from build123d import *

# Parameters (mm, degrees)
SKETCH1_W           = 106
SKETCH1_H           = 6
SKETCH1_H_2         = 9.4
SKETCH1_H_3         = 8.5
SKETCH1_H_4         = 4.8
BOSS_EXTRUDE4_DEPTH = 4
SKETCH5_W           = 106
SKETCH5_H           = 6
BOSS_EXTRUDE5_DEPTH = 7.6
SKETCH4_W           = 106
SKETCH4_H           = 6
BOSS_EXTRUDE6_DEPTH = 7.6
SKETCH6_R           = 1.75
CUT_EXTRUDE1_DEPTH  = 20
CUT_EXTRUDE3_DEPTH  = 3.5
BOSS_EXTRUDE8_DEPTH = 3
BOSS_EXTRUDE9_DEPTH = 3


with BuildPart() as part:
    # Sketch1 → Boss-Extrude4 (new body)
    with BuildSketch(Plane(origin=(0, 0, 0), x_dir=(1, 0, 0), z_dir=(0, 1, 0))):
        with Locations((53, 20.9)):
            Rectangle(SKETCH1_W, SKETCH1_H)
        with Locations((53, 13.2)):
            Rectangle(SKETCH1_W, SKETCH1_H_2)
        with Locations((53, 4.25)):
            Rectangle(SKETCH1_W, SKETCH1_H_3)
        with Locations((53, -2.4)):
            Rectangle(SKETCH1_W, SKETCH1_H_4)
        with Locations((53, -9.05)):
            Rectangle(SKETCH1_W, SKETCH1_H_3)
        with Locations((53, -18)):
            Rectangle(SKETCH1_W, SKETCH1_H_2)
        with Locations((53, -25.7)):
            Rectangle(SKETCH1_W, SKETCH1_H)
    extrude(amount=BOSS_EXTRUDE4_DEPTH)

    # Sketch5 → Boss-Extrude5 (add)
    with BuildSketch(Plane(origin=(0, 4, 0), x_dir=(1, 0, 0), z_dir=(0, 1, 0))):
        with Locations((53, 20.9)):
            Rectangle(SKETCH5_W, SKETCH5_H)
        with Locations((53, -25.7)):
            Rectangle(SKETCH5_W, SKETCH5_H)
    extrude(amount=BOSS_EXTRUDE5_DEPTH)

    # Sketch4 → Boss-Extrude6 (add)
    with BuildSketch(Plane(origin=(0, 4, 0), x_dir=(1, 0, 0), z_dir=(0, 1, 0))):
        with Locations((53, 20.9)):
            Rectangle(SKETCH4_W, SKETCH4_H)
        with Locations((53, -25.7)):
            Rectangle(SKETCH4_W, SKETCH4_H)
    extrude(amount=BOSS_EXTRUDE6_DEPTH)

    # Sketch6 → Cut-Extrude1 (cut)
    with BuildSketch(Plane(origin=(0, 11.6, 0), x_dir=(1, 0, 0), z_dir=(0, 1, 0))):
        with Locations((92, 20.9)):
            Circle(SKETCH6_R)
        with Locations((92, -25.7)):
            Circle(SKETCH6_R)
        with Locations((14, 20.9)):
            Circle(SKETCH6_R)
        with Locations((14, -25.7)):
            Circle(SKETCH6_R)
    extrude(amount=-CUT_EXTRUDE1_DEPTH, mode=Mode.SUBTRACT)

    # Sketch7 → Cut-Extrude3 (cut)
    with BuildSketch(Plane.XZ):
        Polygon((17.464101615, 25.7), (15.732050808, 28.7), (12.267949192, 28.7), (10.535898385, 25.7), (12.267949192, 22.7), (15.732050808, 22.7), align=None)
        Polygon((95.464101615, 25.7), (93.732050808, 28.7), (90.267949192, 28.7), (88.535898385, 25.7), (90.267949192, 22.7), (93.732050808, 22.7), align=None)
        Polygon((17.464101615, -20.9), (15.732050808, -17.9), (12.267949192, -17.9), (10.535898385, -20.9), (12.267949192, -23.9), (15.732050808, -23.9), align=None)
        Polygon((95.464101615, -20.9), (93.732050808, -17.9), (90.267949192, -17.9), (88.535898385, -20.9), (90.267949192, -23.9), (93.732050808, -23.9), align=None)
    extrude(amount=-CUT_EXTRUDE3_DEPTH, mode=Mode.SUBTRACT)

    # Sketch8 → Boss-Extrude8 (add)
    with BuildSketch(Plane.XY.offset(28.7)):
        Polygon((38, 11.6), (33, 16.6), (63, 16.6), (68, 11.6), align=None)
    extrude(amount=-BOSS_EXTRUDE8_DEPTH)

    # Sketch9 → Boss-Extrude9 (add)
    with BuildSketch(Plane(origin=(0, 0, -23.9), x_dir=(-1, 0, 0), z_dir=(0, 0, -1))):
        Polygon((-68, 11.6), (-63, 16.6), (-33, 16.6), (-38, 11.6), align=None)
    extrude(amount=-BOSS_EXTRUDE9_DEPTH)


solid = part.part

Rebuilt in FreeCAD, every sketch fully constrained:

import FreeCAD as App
import Part
import Sketcher
Q = App.Units.Quantity

doc = App.newDocument("Part")
body = doc.addObject("PartDesign::Body", "Body")

# Sketch on XZ plane
sketch1 = body.newObject("Sketcher::SketchObject", "Sketch")
sketch1.AttachmentSupport = (doc.getObject("XZ_Plane"), [""])
sketch1.MapMode = "FlatFace"
sketch1.addGeometry([
    Part.LineSegment(App.Vector(0, -23.9, 0), App.Vector(0, 28.7, 0)),
    Part.LineSegment(App.Vector(0, 28.7, 0), App.Vector(106, 28.7, 0)),
    Part.LineSegment(App.Vector(106, 28.7, 0), App.Vector(106, -23.9, 0)),
    Part.LineSegment(App.Vector(106, -23.9, 0), App.Vector(0, -23.9, 0)),
], False)
sketch1.addConstraint([
    Sketcher.Constraint("Coincident", 0, 2, 1, 1),
    Sketcher.Constraint("Coincident", 1, 2, 2, 1),
    Sketcher.Constraint("Coincident", 2, 2, 3, 1),
    Sketcher.Constraint("Coincident", 3, 2, 0, 1),
    Sketcher.Constraint("Vertical", 0),
    Sketcher.Constraint("Horizontal", 1),
    Sketcher.Constraint("Vertical", 2),
    Sketcher.Constraint("Horizontal", 3),
    Sketcher.Constraint("PointOnObject", 0, 2, -2),
    Sketcher.Constraint("DistanceX", 1, 1, 1, 2, 106.0),
    Sketcher.Constraint("DistanceY", 0, 1, 0, 2, 52.6),
    Sketcher.Constraint("DistanceY", -1, 1, 0, 2, 28.7),
])
pad1 = body.newObject("PartDesign::Pad", "Pad")
pad1.Profile = sketch1
pad1.Length = 4
pad1.Reversed = True

# Sketch on XZ plane
sketch2 = body.newObject("Sketcher::SketchObject", "Sketch001")
sketch2.AttachmentSupport = (doc.getObject("XZ_Plane"), [""])
sketch2.MapMode = "FlatFace"
sketch2.AttachmentOffset = App.Placement(App.Vector(0, 0, -4), App.Rotation())
sketch2.addGeometry([
    Part.LineSegment(App.Vector(0, -23.9, 0), App.Vector(0, -17.9, 0)),  # 0
    Part.LineSegment(App.Vector(0, -17.9, 0), App.Vector(106, -17.9, 0)),  # 1
    Part.LineSegment(App.Vector(106, -17.9, 0), App.Vector(106, -23.9, 0)),  # 2
    Part.LineSegment(App.Vector(106, -23.9, 0), App.Vector(0, -23.9, 0)),  # 3
    Part.LineSegment(App.Vector(0, 22.7, 0), App.Vector(0, 28.7, 0)),  # 4
    Part.LineSegment(App.Vector(0, 28.7, 0), App.Vector(106, 28.7, 0)),  # 5
    Part.LineSegment(App.Vector(106, 28.7, 0), App.Vector(106, 22.7, 0)),  # 6
    Part.LineSegment(App.Vector(106, 22.7, 0), App.Vector(0, 22.7, 0)),  # 7
], False)
sketch2.addConstraint([
    Sketcher.Constraint("Coincident", 0, 2, 1, 1),
    Sketcher.Constraint("Coincident", 1, 2, 2, 1),
    Sketcher.Constraint("Coincident", 2, 2, 3, 1),
    Sketcher.Constraint("Coincident", 3, 2, 0, 1),
    Sketcher.Constraint("Coincident", 4, 2, 5, 1),
    Sketcher.Constraint("Coincident", 5, 2, 6, 1),
    Sketcher.Constraint("Coincident", 6, 2, 7, 1),
    Sketcher.Constraint("Coincident", 7, 2, 4, 1),
    Sketcher.Constraint("Vertical", 0),
    Sketcher.Constraint("Horizontal", 1),
    Sketcher.Constraint("Vertical", 2),
    Sketcher.Constraint("Horizontal", 3),
    Sketcher.Constraint("Vertical", 4),
    Sketcher.Constraint("Horizontal", 5),
    Sketcher.Constraint("Vertical", 6),
    Sketcher.Constraint("Horizontal", 7),
    Sketcher.Constraint("PointOnObject", 0, 2, -2),
    Sketcher.Constraint("PointOnObject", 4, 2, -2),
    Sketcher.Constraint("Vertical", 2, 2, 5, 2),
    Sketcher.Constraint("Equal", 2, 4),
    Sketcher.Constraint("DistanceX", 1, 1, 1, 2, 106.0),
    Sketcher.Constraint("DistanceY", 0, 1, 0, 2, 6.0),
    Sketcher.Constraint("DistanceY", 0, 2, -1, 1, 17.9),
    Sketcher.Constraint("DistanceY", -1, 1, 4, 2, 28.7),
])
pad2 = body.newObject("PartDesign::Pad", "Pad001")
pad2.Profile = sketch2
pad2.Length = 7.6
pad2.Reversed = True

# Sketch on XZ plane
sketch3 = body.newObject("Sketcher::SketchObject", "Sketch002")
sketch3.AttachmentSupport = (doc.getObject("XZ_Plane"), [""])
sketch3.MapMode = "FlatFace"
sketch3.AttachmentOffset = App.Placement(App.Vector(0, 0, -4), App.Rotation())
sketch3.addGeometry([
    Part.LineSegment(App.Vector(0, -23.9, 0), App.Vector(0, -17.9, 0)),  # 0
    Part.LineSegment(App.Vector(0, -17.9, 0), App.Vector(106, -17.9, 0)),  # 1
    Part.LineSegment(App.Vector(106, -17.9, 0), App.Vector(106, -23.9, 0)),  # 2
    Part.LineSegment(App.Vector(106, -23.9, 0), App.Vector(0, -23.9, 0)),  # 3
    Part.LineSegment(App.Vector(0, 22.7, 0), App.Vector(0, 28.7, 0)),  # 4
    Part.LineSegment(App.Vector(0, 28.7, 0), App.Vector(106, 28.7, 0)),  # 5
    Part.LineSegment(App.Vector(106, 28.7, 0), App.Vector(106, 22.7, 0)),  # 6
    Part.LineSegment(App.Vector(106, 22.7, 0), App.Vector(0, 22.7, 0)),  # 7
], False)
sketch3.addConstraint([
    Sketcher.Constraint("Coincident", 0, 2, 1, 1),
    Sketcher.Constraint("Coincident", 1, 2, 2, 1),
    Sketcher.Constraint("Coincident", 2, 2, 3, 1),
    Sketcher.Constraint("Coincident", 3, 2, 0, 1),
    Sketcher.Constraint("Coincident", 4, 2, 5, 1),
    Sketcher.Constraint("Coincident", 5, 2, 6, 1),
    Sketcher.Constraint("Coincident", 6, 2, 7, 1),
    Sketcher.Constraint("Coincident", 7, 2, 4, 1),
    Sketcher.Constraint("Vertical", 0),
    Sketcher.Constraint("Horizontal", 1),
    Sketcher.Constraint("Vertical", 2),
    Sketcher.Constraint("Horizontal", 3),
    Sketcher.Constraint("Vertical", 4),
    Sketcher.Constraint("Horizontal", 5),
    Sketcher.Constraint("Vertical", 6),
    Sketcher.Constraint("Horizontal", 7),
    Sketcher.Constraint("PointOnObject", 0, 2, -2),
    Sketcher.Constraint("PointOnObject", 4, 2, -2),
    Sketcher.Constraint("Vertical", 2, 2, 5, 2),
    Sketcher.Constraint("Equal", 2, 4),
    Sketcher.Constraint("DistanceX", 1, 1, 1, 2, 106.0),
    Sketcher.Constraint("DistanceY", 0, 1, 0, 2, 6.0),
    Sketcher.Constraint("DistanceY", 0, 2, -1, 1, 17.9),
    Sketcher.Constraint("DistanceY", -1, 1, 4, 2, 28.7),
])
pad3 = body.newObject("PartDesign::Pad", "Pad002")
pad3.Profile = sketch3
pad3.Length = 7.6
pad3.Reversed = True

# Sketch on XZ plane
sketch4 = body.newObject("Sketcher::SketchObject", "Sketch003")
sketch4.AttachmentSupport = (doc.getObject("XZ_Plane"), [""])
sketch4.MapMode = "FlatFace"
sketch4.AttachmentOffset = App.Placement(App.Vector(0, 0, -11.6), App.Rotation())
sketch4.addGeometry([
    Part.Circle(App.Vector(92, -20.9, 0), App.Vector(0, 0, 1), 1.75),
    Part.Circle(App.Vector(92, 25.7, 0), App.Vector(0, 0, 1), 1.75),
    Part.Circle(App.Vector(14, -20.9, 0), App.Vector(0, 0, 1), 1.75),
    Part.Circle(App.Vector(14, 25.7, 0), App.Vector(0, 0, 1), 1.75),
], False)
sketch4.addConstraint([
    Sketcher.Constraint("Equal", 0, 1),
    Sketcher.Constraint("Equal", 1, 2),
    Sketcher.Constraint("Equal", 2, 3),
    Sketcher.Constraint("Horizontal", 0, 3, 2, 3),
    Sketcher.Constraint("Horizontal", 1, 3, 3, 3),
    Sketcher.Constraint("Vertical", 0, 3, 1, 3),
    Sketcher.Constraint("Vertical", 2, 3, 3, 3),
    Sketcher.Constraint("Diameter", 0, 3.5),
    Sketcher.Constraint("DistanceX", -1, 1, 0, 3, 92.0),
    Sketcher.Constraint("DistanceX", -1, 1, 2, 3, 14.0),
    Sketcher.Constraint("DistanceY", 0, 3, -1, 1, 20.9),
    Sketcher.Constraint("DistanceY", -1, 1, 1, 3, 25.7),
])
pocket1 = body.newObject("PartDesign::Pocket", "Pocket")
pocket1.Profile = sketch4
pocket1.Length = 20
pocket1.Reversed = True

# Sketch on XZ plane
sketch5 = body.newObject("Sketcher::SketchObject", "Sketch004")
sketch5.AttachmentSupport = (doc.getObject("XZ_Plane"), [""])
sketch5.MapMode = "FlatFace"
sketch5.addGeometry([
    Part.LineSegment(App.Vector(17.464102, 25.7, 0), App.Vector(15.732051, 28.7, 0)),  # 0
    Part.LineSegment(App.Vector(15.732051, 28.7, 0), App.Vector(12.267949, 28.7, 0)),  # 1
    Part.LineSegment(App.Vector(12.267949, 28.7, 0), App.Vector(10.535898, 25.7, 0)),  # 2
    Part.LineSegment(App.Vector(10.535898, 25.7, 0), App.Vector(12.267949, 22.7, 0)),  # 3
    Part.LineSegment(App.Vector(12.267949, 22.7, 0), App.Vector(15.732051, 22.7, 0)),  # 4
    Part.LineSegment(App.Vector(15.732051, 22.7, 0), App.Vector(17.464102, 25.7, 0)),  # 5
    Part.LineSegment(App.Vector(95.464102, 25.7, 0), App.Vector(93.732051, 28.7, 0)),  # 6
    Part.LineSegment(App.Vector(93.732051, 28.7, 0), App.Vector(90.267949, 28.7, 0)),  # 7
    Part.LineSegment(App.Vector(90.267949, 28.7, 0), App.Vector(88.535898, 25.7, 0)),  # 8
    Part.LineSegment(App.Vector(88.535898, 25.7, 0), App.Vector(90.267949, 22.7, 0)),  # 9
    Part.LineSegment(App.Vector(90.267949, 22.7, 0), App.Vector(93.732051, 22.7, 0)),  # 10
    Part.LineSegment(App.Vector(93.732051, 22.7, 0), App.Vector(95.464102, 25.7, 0)),  # 11
    Part.LineSegment(App.Vector(17.464102, -20.9, 0), App.Vector(15.732051, -17.9, 0)),  # 12
    Part.LineSegment(App.Vector(15.732051, -17.9, 0), App.Vector(12.267949, -17.9, 0)),  # 13
    Part.LineSegment(App.Vector(12.267949, -17.9, 0), App.Vector(10.535898, -20.9, 0)),  # 14
    Part.LineSegment(App.Vector(10.535898, -20.9, 0), App.Vector(12.267949, -23.9, 0)),  # 15
    Part.LineSegment(App.Vector(12.267949, -23.9, 0), App.Vector(15.732051, -23.9, 0)),  # 16
    Part.LineSegment(App.Vector(15.732051, -23.9, 0), App.Vector(17.464102, -20.9, 0)),  # 17
    Part.LineSegment(App.Vector(95.464102, -20.9, 0), App.Vector(93.732051, -17.9, 0)),  # 18
    Part.LineSegment(App.Vector(93.732051, -17.9, 0), App.Vector(90.267949, -17.9, 0)),  # 19
    Part.LineSegment(App.Vector(90.267949, -17.9, 0), App.Vector(88.535898, -20.9, 0)),  # 20
    Part.LineSegment(App.Vector(88.535898, -20.9, 0), App.Vector(90.267949, -23.9, 0)),  # 21
    Part.LineSegment(App.Vector(90.267949, -23.9, 0), App.Vector(93.732051, -23.9, 0)),  # 22
    Part.LineSegment(App.Vector(93.732051, -23.9, 0), App.Vector(95.464102, -20.9, 0)),  # 23
], False)
sketch5.addConstraint([
    Sketcher.Constraint("Coincident", 0, 2, 1, 1),
    Sketcher.Constraint("Coincident", 1, 2, 2, 1),
    Sketcher.Constraint("Coincident", 2, 2, 3, 1),
    Sketcher.Constraint("Coincident", 3, 2, 4, 1),
    Sketcher.Constraint("Coincident", 4, 2, 5, 1),
    Sketcher.Constraint("Coincident", 5, 2, 0, 1),
    Sketcher.Constraint("Coincident", 6, 2, 7, 1),
    Sketcher.Constraint("Coincident", 7, 2, 8, 1),
    Sketcher.Constraint("Coincident", 8, 2, 9, 1),
    Sketcher.Constraint("Coincident", 9, 2, 10, 1),
    Sketcher.Constraint("Coincident", 10, 2, 11, 1),
    Sketcher.Constraint("Coincident", 11, 2, 6, 1),
    Sketcher.Constraint("Coincident", 12, 2, 13, 1),
    Sketcher.Constraint("Coincident", 13, 2, 14, 1),
    Sketcher.Constraint("Coincident", 14, 2, 15, 1),
    Sketcher.Constraint("Coincident", 15, 2, 16, 1),
    Sketcher.Constraint("Coincident", 16, 2, 17, 1),
    Sketcher.Constraint("Coincident", 17, 2, 12, 1),
    Sketcher.Constraint("Coincident", 18, 2, 19, 1),
    Sketcher.Constraint("Coincident", 19, 2, 20, 1),
    Sketcher.Constraint("Coincident", 20, 2, 21, 1),
    Sketcher.Constraint("Coincident", 21, 2, 22, 1),
    Sketcher.Constraint("Coincident", 22, 2, 23, 1),
    Sketcher.Constraint("Coincident", 23, 2, 18, 1),
    Sketcher.Constraint("Horizontal", 1),
    Sketcher.Constraint("Horizontal", 4),
    Sketcher.Constraint("Horizontal", 7),
    Sketcher.Constraint("Horizontal", 10),
    Sketcher.Constraint("Horizontal", 13),
    Sketcher.Constraint("Horizontal", 16),
    Sketcher.Constraint("Horizontal", 19),
    Sketcher.Constraint("Horizontal", 22),
    Sketcher.Constraint("Parallel", 0, 3),
    Sketcher.Constraint("Parallel", 2, 5),
    Sketcher.Constraint("Parallel", 3, 6),
    Sketcher.Constraint("Parallel", 5, 8),
    Sketcher.Constraint("Parallel", 6, 9),
    Sketcher.Constraint("Parallel", 8, 11),
    Sketcher.Constraint("Parallel", 9, 12),
    Sketcher.Constraint("Parallel", 11, 14),
    Sketcher.Constraint("Parallel", 12, 15),
    Sketcher.Constraint("Parallel", 14, 17),
    Sketcher.Constraint("Parallel", 15, 18),
    Sketcher.Constraint("Parallel", 17, 20),
    Sketcher.Constraint("Parallel", 18, 21),
    Sketcher.Constraint("Parallel", 20, 23),
    Sketcher.Constraint("Horizontal", 2, 2, 5, 2),
    Sketcher.Constraint("Horizontal", 1, 2, 6, 2),
    Sketcher.Constraint("Horizontal", 5, 2, 8, 2),
    Sketcher.Constraint("Horizontal", 4, 2, 9, 2),
    Sketcher.Constraint("Horizontal", 8, 2, 11, 2),
    Sketcher.Constraint("Horizontal", 14, 2, 17, 2),
    Sketcher.Constraint("Horizontal", 13, 2, 18, 2),
    Sketcher.Constraint("Horizontal", 17, 2, 20, 2),
    Sketcher.Constraint("Horizontal", 16, 2, 21, 2),
    Sketcher.Constraint("Horizontal", 20, 2, 23, 2),
    Sketcher.Constraint("Vertical", 1, 2, 3, 2),
    Sketcher.Constraint("Vertical", 0, 2, 4, 2),
    Sketcher.Constraint("Vertical", 4, 2, 12, 2),
    Sketcher.Constraint("Vertical", 3, 2, 13, 2),
    Sketcher.Constraint("Vertical", 2, 2, 14, 2),
    Sketcher.Constraint("Vertical", 13, 2, 15, 2),
    Sketcher.Constraint("Vertical", 10, 2, 18, 2),
    Sketcher.Constraint("Vertical", 9, 2, 19, 2),
    Sketcher.Constraint("Equal", 4, 7),
    Sketcher.Constraint("Angle", 0, Q("120 deg")),
    Sketcher.Constraint("DistanceY", 2, 2, 1, 2, 3.0),
    Sketcher.Constraint("DistanceX", 0, 2, 6, 2, 78.0),
    Sketcher.Constraint("DistanceY", -1, 1, 0, 2, 28.7),
    Sketcher.Constraint("DistanceY", 12, 2, -1, 1, 17.9),
    Sketcher.Constraint("DistanceX", 1, 2, 1, 1, 3.464102),
    Sketcher.Constraint("DistanceX", -1, 1, 2, 2, 10.535898),
])
pocket2 = body.newObject("PartDesign::Pocket", "Pocket001")
pocket2.Profile = sketch5
pocket2.Length = 3.5

# Sketch on XY plane
sketch6 = body.newObject("Sketcher::SketchObject", "Sketch005")
sketch6.AttachmentSupport = (doc.getObject("XY_Plane"), [""])
sketch6.MapMode = "FlatFace"
sketch6.AttachmentOffset = App.Placement(App.Vector(0, 0, 28.7), App.Rotation())
sketch6.addGeometry([
    Part.LineSegment(App.Vector(33, 16.6, 0), App.Vector(38, 11.6, 0)),
    Part.LineSegment(App.Vector(38, 11.6, 0), App.Vector(68, 11.6, 0)),
    Part.LineSegment(App.Vector(68, 11.6, 0), App.Vector(63, 16.6, 0)),
    Part.LineSegment(App.Vector(63, 16.6, 0), App.Vector(33, 16.6, 0)),
], False)
sketch6.addConstraint([
    Sketcher.Constraint("Coincident", 0, 2, 1, 1),
    Sketcher.Constraint("Coincident", 1, 2, 2, 1),
    Sketcher.Constraint("Coincident", 2, 2, 3, 1),
    Sketcher.Constraint("Coincident", 3, 2, 0, 1),
    Sketcher.Constraint("Horizontal", 1),
    Sketcher.Constraint("Horizontal", 3),
    Sketcher.Constraint("Parallel", 0, 2),
    Sketcher.Constraint("DistanceX", 1, 1, 1, 2, 30.0),
    Sketcher.Constraint("Angle", 0, Q("-45 deg")),
    Sketcher.Constraint("DistanceX", -1, 1, 0, 2, 38.0),
    Sketcher.Constraint("DistanceX", -1, 1, 2, 2, 63.0),
    Sketcher.Constraint("DistanceY", -1, 1, 0, 2, 11.6),
])
pad4 = body.newObject("PartDesign::Pad", "Pad003")
pad4.Profile = sketch6
pad4.Length = 3
pad4.Reversed = True

# Sketch on XY plane
sketch7 = body.newObject("Sketcher::SketchObject", "Sketch006")
sketch7.AttachmentSupport = (doc.getObject("XY_Plane"), [""])
sketch7.MapMode = "FlatFace"
sketch7.AttachmentOffset = App.Placement(App.Vector(0, 0, -23.9), App.Rotation())
sketch7.addGeometry([
    Part.LineSegment(App.Vector(63, 16.6, 0), App.Vector(68, 11.6, 0)),
    Part.LineSegment(App.Vector(68, 11.6, 0), App.Vector(38, 11.6, 0)),
    Part.LineSegment(App.Vector(38, 11.6, 0), App.Vector(33, 16.6, 0)),
    Part.LineSegment(App.Vector(33, 16.6, 0), App.Vector(63, 16.6, 0)),
], False)
sketch7.addConstraint([
    Sketcher.Constraint("Coincident", 0, 2, 1, 1),
    Sketcher.Constraint("Coincident", 1, 2, 2, 1),
    Sketcher.Constraint("Coincident", 2, 2, 3, 1),
    Sketcher.Constraint("Coincident", 3, 2, 0, 1),
    Sketcher.Constraint("Horizontal", 1),
    Sketcher.Constraint("Horizontal", 3),
    Sketcher.Constraint("Parallel", 0, 2),
    Sketcher.Constraint("DistanceX", 1, 2, 1, 1, 30.0),
    Sketcher.Constraint("Angle", 0, Q("-45 deg")),
    Sketcher.Constraint("DistanceX", -1, 1, 0, 2, 68.0),
    Sketcher.Constraint("DistanceX", -1, 1, 2, 2, 33.0),
    Sketcher.Constraint("DistanceY", -1, 1, 0, 2, 11.6),
])
pad5 = body.newObject("PartDesign::Pad", "Pad004")
pad5.Profile = sketch7
pad5.Length = 3

doc.recompute()
